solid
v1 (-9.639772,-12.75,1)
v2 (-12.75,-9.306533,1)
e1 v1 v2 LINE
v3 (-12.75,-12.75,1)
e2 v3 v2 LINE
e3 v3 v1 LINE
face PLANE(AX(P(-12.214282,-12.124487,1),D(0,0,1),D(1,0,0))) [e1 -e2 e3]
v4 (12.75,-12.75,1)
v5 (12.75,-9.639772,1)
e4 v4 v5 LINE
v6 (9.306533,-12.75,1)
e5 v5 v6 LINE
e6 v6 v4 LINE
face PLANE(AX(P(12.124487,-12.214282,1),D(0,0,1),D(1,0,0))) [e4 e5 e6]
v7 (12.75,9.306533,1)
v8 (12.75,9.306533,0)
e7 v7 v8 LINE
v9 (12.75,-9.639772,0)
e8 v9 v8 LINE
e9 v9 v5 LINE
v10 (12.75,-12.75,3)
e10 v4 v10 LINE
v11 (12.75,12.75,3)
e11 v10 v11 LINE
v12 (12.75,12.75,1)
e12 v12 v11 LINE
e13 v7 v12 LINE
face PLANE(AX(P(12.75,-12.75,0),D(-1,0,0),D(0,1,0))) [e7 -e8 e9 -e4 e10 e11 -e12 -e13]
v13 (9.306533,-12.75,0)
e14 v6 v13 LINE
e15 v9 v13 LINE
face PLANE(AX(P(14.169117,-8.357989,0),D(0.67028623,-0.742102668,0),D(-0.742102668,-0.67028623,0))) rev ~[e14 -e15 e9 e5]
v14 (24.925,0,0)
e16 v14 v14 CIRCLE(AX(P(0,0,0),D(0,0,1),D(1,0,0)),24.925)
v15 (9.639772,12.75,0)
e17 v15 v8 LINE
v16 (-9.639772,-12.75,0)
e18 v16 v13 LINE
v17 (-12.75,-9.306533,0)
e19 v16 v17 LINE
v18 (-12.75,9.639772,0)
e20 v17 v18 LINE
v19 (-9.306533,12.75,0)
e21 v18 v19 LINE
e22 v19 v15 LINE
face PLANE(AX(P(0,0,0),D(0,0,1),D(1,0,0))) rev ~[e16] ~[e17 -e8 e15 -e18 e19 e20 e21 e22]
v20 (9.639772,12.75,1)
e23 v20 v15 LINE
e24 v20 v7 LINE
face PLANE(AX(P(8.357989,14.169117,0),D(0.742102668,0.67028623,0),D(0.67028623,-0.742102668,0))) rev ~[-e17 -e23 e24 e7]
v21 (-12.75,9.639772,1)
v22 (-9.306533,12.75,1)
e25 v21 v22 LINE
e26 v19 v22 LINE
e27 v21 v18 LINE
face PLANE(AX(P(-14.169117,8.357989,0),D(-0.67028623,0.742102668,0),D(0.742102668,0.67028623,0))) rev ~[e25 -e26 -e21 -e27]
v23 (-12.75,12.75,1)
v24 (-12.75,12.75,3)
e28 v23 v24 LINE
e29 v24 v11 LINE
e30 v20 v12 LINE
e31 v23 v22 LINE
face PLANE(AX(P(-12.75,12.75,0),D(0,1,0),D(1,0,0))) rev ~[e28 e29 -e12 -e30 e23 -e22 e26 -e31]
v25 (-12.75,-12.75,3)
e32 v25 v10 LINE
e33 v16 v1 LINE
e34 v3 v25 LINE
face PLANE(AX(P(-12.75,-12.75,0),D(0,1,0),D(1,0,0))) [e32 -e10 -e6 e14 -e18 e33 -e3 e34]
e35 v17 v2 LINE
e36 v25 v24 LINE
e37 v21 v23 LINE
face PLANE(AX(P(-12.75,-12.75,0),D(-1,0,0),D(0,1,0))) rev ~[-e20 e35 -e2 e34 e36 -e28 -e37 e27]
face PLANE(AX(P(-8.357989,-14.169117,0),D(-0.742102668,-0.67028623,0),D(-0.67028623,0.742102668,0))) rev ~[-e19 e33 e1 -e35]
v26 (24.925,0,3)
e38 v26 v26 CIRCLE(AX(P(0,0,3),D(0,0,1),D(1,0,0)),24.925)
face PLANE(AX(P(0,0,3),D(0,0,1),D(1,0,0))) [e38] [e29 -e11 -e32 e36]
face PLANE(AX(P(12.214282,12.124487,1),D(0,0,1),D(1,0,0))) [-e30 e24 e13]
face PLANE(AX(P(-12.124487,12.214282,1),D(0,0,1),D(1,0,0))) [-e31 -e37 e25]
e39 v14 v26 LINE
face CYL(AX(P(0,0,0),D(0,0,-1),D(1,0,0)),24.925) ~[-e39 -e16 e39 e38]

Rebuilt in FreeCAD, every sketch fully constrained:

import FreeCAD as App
import Part
import Sketcher
from FreeCAD import Vector
Q = App.Units.Quantity

doc = App.newDocument("Part")
body = doc.addObject("PartDesign::Body", "Body")

# Sketch on XY plane
sketch1 = body.newObject("Sketcher::SketchObject", "Sketch")
sketch1.AttachmentSupport = (doc.getObject("XY_Plane"), [""])
sketch1.MapMode = "FlatFace"
sketch1.addGeometry([
    Part.Circle(Vector(0, 0, 0), Vector(0, 0, 1), 25),  # 0
    Part.LineSegment(Vector(13, -13, 0), Vector(-13, -13, 0)),  # 1
    Part.LineSegment(Vector(-13, -13, 0), Vector(-13, 13, 0)),  # 2
    Part.LineSegment(Vector(-13, 13, 0), Vector(13, 13, 0)),  # 3
    Part.LineSegment(Vector(13, 13, 0), Vector(13, -13, 0)),  # 4
], False)
sketch1.addConstraint([
    Sketcher.Constraint("Coincident", 1, 2, 2, 1),
    Sketcher.Constraint("Coincident", 2, 2, 3, 1),
    Sketcher.Constraint("Coincident", 3, 2, 4, 1),
    Sketcher.Constraint("Coincident", 4, 2, 1, 1),
    Sketcher.Constraint("Horizontal", 1),
    Sketcher.Constraint("Vertical", 2),
    Sketcher.Constraint("Horizontal", 3),
    Sketcher.Constraint("Vertical", 4),
    Sketcher.Constraint("Coincident", 0, 3, -1, 1),
    Sketcher.Constraint("Symmetric", 1, 2, 3, 2, -1, 1),
    Sketcher.Constraint("Equal", 3, 2),
    Sketcher.Constraint("Diameter", 0, Q("49.85 mm")),
    Sketcher.Constraint("DistanceX", 1, 2, 1, 1, Q("25.5 mm")),
])
pad1 = body.newObject("PartDesign::Pad", "Pad")
pad1.Profile = sketch1
pad1.Length = 3

# Sketch on XY plane
sketch2 = body.newObject("Sketcher::SketchObject", "Sketch001")
sketch2.AttachmentSupport = (doc.getObject("XY_Plane"), [""])
sketch2.MapMode = "FlatFace"
sketch2.addGeometry([
    Part.LineSegment(Vector(-8, -14, 0), Vector(-14, -8, 0)),  # 0
    Part.LineSegment(Vector(-14, -8, 0), Vector(-15, -15, 0)),  # 1
    Part.LineSegment(Vector(-15, -15, 0), Vector(-8, -14, 0)),  # 2
    Part.LineSegment(Vector(14, -8, 0), Vector(8, -14, 0)),  # 3
    Part.LineSegment(Vector(8, -14, 0), Vector(15, -15, 0)),  # 4
    Part.LineSegment(Vector(15, -15, 0), Vector(14, -8, 0)),  # 5
    Part.LineSegment(Vector(8, 14, 0), Vector(14, 8, 0)),  # 6
    Part.LineSegment(Vector(14, 8, 0), Vector(15, 15, 0)),  # 7
    Part.LineSegment(Vector(15, 15, 0), Vector(8, 14, 0)),  # 8
    Part.LineSegment(Vector(-14, 8, 0), Vector(-8, 14, 0)),  # 9
    Part.LineSegment(Vector(-8, 14, 0), Vector(-15, 15, 0)),  # 10
    Part.LineSegment(Vector(-15, 15, 0), Vector(-14, 8, 0)),  # 11
], False)
sketch2.addConstraint([
    Sketcher.Constraint("Coincident", 0, 2, 1, 1),
    Sketcher.Constraint("Coincident", 1, 2, 2, 1),
    Sketcher.Constraint("Coincident", 2, 2, 0, 1),
    Sketcher.Constraint("Coincident", 3, 2, 4, 1),
    Sketcher.Constraint("Coincident", 4, 2, 5, 1),
    Sketcher.Constraint("Coincident", 5, 2, 3, 1),
    Sketcher.Constraint("Coincident", 6, 2, 7, 1),
    Sketcher.Constraint("Coincident", 7, 2, 8, 1),
    Sketcher.Constraint("Coincident", 8, 2, 6, 1),
    Sketcher.Constraint("Coincident", 9, 2, 10, 1),
    Sketcher.Constraint("Coincident", 10, 2, 11, 1),
    Sketcher.Constraint("Coincident", 11, 2, 9, 1),
    Sketcher.Constraint("Symmetric", 0, 2, 6, 2, -1, 1),
    Sketcher.Constraint("Symmetric", 1, 2, 7, 2, -1, 1),
    Sketcher.Constraint("Symmetric", 2, 2, 8, 2, -1, 1),
    Sketcher.Constraint("Symmetric", 3, 2, 9, 2, -1, 1),
    Sketcher.Constraint("Symmetric", 4, 2, 10, 2, -1, 1),
    Sketcher.Constraint("Symmetric", 5, 2, 11, 2, -1, 1),
    Sketcher.Constraint("Perpendicular", 0, 3),
    Sketcher.Constraint("Perpendicular", 1, 4),
    Sketcher.Constraint("Perpendicular", 2, 5),
    Sketcher.Constraint("Equal", 0, 3),
    Sketcher.Constraint("Distance", 1, Q("6.58791 mm")),
    Sketcher.Constraint("DistanceY", 0, 2, -1, 1, Q("8.014991 mm")),
    Sketcher.Constraint("DistanceX", 2, 2, -1, 1, Q("8.357989 mm")),
    Sketcher.Constraint("DistanceX", -1, 1, 3, 2, Q("8.014991 mm")),
    Sketcher.Constraint("DistanceY", 5, 2, -1, 1, Q("8.357989 mm")),
    Sketcher.Constraint("DistanceX", 1, 2, 0, 2, Q("0.694821 mm")),
    Sketcher.Constraint("DistanceY", 1, 2, 2, 2, Q("0.39704 mm")),
    Sketcher.Constraint("DistanceY", 4, 2, 2, 2, Q("0.442258 mm")),
])
pad2 = body.newObject("PartDesign::Pad", "Pad001")
pad2.Profile = sketch2
pad2.Length = 1

doc.recompute()
